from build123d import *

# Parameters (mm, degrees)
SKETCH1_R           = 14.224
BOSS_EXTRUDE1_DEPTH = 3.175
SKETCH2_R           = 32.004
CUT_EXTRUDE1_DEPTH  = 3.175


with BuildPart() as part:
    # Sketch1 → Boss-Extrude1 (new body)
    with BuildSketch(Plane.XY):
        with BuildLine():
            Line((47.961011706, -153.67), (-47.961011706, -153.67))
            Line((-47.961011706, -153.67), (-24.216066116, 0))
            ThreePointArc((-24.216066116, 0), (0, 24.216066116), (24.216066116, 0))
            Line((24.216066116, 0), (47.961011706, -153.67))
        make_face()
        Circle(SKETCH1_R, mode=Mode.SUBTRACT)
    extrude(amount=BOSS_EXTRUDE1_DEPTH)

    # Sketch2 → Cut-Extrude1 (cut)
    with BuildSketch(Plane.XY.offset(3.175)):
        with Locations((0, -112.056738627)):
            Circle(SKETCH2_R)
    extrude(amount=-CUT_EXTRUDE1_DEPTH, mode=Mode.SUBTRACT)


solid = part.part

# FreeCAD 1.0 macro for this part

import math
import FreeCAD as App
import Part
import Sketcher

V = App.Vector
Q = App.Units.Quantity

doc = App.newDocument("Part")
params = doc.addObject("Spreadsheet::Sheet", "Params")
for row, (alias, value) in enumerate([
    ("sketch1_diameter", "1.12 in"),
    ("pad1_length", "0.125 in"),
    ("sketch2_diameter", "2.52 in"),
    ("pocket1_length", "0.125 in"),
], start=1):
    params.set(f"A{row}", alias)
    params.set(f"B{row}", "=" + value)
    params.setAlias(f"B{row}", alias)

body = doc.addObject("PartDesign::Body", "Body")

# Sketch on XY plane
sketch1 = body.newObject("Sketcher::SketchObject", "Sketch")
sketch1.AttachmentSupport = (doc.getObject("XY_Plane"), [""])
sketch1.MapMode = "FlatFace"
sketch1.addGeometry([
    Part.LineSegment(V(-48, -154, 0), V(48, -154, 0)),  # 0
    Part.LineSegment(V(48, -154, 0), V(24, 0, 0)),  # 1
    Part.ArcOfCircle(Part.Circle(V(0, 0, 0), V(0, 0, 1), 24), math.radians(0), math.radians(180)),  # 2
    Part.LineSegment(V(-24, 0, 0), V(-48, -154, 0)),  # 3
    Part.Circle(V(0, 0, 0), V(0, 0, 1), 14),  # 4
], False)
sketch1.addConstraint([
    Sketcher.Constraint("Coincident", 0, 2, 1, 1),
    Sketcher.Constraint("Coincident", 1, 2, 2, 1),
    Sketcher.Constraint("Coincident", 2, 2, 3, 1),
    Sketcher.Constraint("Coincident", 3, 2, 0, 1),
    Sketcher.Constraint("Horizontal", 0),
    Sketcher.Constraint("Coincident", 2, 3, -1, 1),
    Sketcher.Constraint("Coincident", 4, 3, -1, 1),
    Sketcher.Constraint("PointOnObject", 1, 2, -1),
    Sketcher.Constraint("PointOnObject", 2, 2, -1),
    Sketcher.Constraint("Equal", 1, 3),
    Sketcher.Constraint("Diameter", 4, Q("1.12 in")),
    Sketcher.Constraint("DistanceY", 0, 2, -1, 1, Q("6.05 in")),
    Sketcher.Constraint("Radius", 2, 24.216066),
    Sketcher.Constraint("Distance", 1, 155.493702),
])
sketch1.setExpression("Constraints[10]", "Params.sketch1_diameter")
pad1 = body.newObject("PartDesign::Pad", "Pad")
pad1.Profile = sketch1
pad1.setExpression("Length", "Params.pad1_length")

# Sketch on XY plane
sketch2 = body.newObject("Sketcher::SketchObject", "Sketch001")
sketch2.AttachmentSupport = (doc.getObject("XY_Plane"), [""])
sketch2.MapMode = "FlatFace"
sketch2.AttachmentOffset = App.Placement(V(0, 0, 0.125 * 25.4), App.Rotation())
sketch2.addGeometry(Part.Circle(V(0, -112, 0), V(0, 0, 1), 32), False)
sketch2.addConstraint([
    Sketcher.Constraint("PointOnObject", 0, 3, -2),
    Sketcher.Constraint("Diameter", 0, Q("2.52 in")),
    Sketcher.Constraint("DistanceY", 0, 3, -1, 1, 112.056739),
])
sketch2.setExpression("Constraints[1]", "Params.sketch2_diameter")
pocket1 = body.newObject("PartDesign::Pocket", "Pocket")
pocket1.Profile = sketch2
pocket1.setExpression("Length", "Params.pocket1_length")

doc.recompute()
